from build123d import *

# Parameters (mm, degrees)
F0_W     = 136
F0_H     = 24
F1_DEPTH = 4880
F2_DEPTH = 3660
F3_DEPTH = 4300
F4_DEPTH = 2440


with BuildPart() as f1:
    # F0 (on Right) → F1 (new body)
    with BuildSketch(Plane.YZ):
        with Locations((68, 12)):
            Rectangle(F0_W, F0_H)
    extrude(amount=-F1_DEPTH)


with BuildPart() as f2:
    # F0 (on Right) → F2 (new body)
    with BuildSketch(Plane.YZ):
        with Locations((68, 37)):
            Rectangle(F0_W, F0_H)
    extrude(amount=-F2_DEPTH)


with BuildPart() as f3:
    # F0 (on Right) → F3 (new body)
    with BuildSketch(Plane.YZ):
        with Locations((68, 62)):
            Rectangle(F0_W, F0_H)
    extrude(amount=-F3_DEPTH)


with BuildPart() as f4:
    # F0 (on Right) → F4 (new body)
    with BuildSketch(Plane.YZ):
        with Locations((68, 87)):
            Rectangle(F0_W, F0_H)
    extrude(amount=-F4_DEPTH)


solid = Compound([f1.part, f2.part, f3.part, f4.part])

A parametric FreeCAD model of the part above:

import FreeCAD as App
import Part
import Sketcher
from FreeCAD import Vector
Q = App.Units.Quantity

doc = App.newDocument("Part")
body = doc.addObject("PartDesign::Body", "Body")

sketch1 = body.newObject("Sketcher::SketchObject", "Sketch")
sketch1.AttachmentSupport = (doc.getObject("YZ_Plane"), [""])
sketch1.MapMode = "FlatFace"
sketch1.addGeometry([
    Part.LineSegment(Vector(0, 24, 0), Vector(0, 0, 0)),
    Part.LineSegment(Vector(0, 0, 0), Vector(136, 0, 0)),
    Part.LineSegment(Vector(136, 0, 0), Vector(136, 24, 0)),
    Part.LineSegment(Vector(136, 24, 0), Vector(0, 24, 0)),
], False)
sketch1.addConstraint([
    Sketcher.Constraint("Coincident", 0, 2, 1, 1),
    Sketcher.Constraint("Coincident", 1, 2, 2, 1),
    Sketcher.Constraint("Coincident", 2, 2, 3, 1),
    Sketcher.Constraint("Coincident", 3, 2, 0, 1),
    Sketcher.Constraint("Vertical", 0),
    Sketcher.Constraint("Horizontal", 1),
    Sketcher.Constraint("Vertical", 2),
    Sketcher.Constraint("Horizontal", 3),
    Sketcher.Constraint("Coincident", 0, 2, -1, 1),
    Sketcher.Constraint("DistanceX", 1, 1, 1, 2, Q("136 mm")),
    Sketcher.Constraint("DistanceY", 0, 2, 0, 1, Q("24 mm")),
])
pad1 = body.newObject("PartDesign::Pad", "Pad")
pad1.Profile = sketch1
pad1.Length = 4880
pad1.Reversed = True
body2 = doc.addObject("PartDesign::Body", "Body001")

sketch2 = body2.newObject("Sketcher::SketchObject", "Sketch001")
sketch2.AttachmentSupport = (doc.getObject("YZ_Plane001"), [""])
sketch2.MapMode = "FlatFace"
sketch2.addGeometry([
    Part.LineSegment(Vector(0, 49, 0), Vector(0, 25, 0)),
    Part.LineSegment(Vector(0, 25, 0), Vector(136, 25, 0)),
    Part.LineSegment(Vector(136, 25, 0), Vector(136, 49, 0)),
    Part.LineSegment(Vector(136, 49, 0), Vector(0, 49, 0)),
], False)
sketch2.addConstraint([
    Sketcher.Constraint("Coincident", 0, 2, 1, 1),
    Sketcher.Constraint("Coincident", 1, 2, 2, 1),
    Sketcher.Constraint("Coincident", 2, 2, 3, 1),
    Sketcher.Constraint("Coincident", 3, 2, 0, 1),
    Sketcher.Constraint("Vertical", 0),
    Sketcher.Constraint("Horizontal", 1),
    Sketcher.Constraint("Vertical", 2),
    Sketcher.Constraint("Horizontal", 3),
    Sketcher.Constraint("PointOnObject", 0, 2, -2),
    Sketcher.Constraint("DistanceX", 1, 1, 1, 2, Q("136 mm")),
    Sketcher.Constraint("DistanceY", 0, 2, 0, 1, Q("24 mm")),
    Sketcher.Constraint("DistanceY", -1, 1, 0, 2, Q("25 mm")),
])
pad2 = body2.newObject("PartDesign::Pad", "Pad001")
pad2.Profile = sketch2
pad2.Length = 3660
pad2.Reversed = True
body3 = doc.addObject("PartDesign::Body", "Body002")

sketch3 = body3.newObject("Sketcher::SketchObject", "Sketch002")
sketch3.AttachmentSupport = (doc.getObject("YZ_Plane002"), [""])
sketch3.MapMode = "FlatFace"
sketch3.addGeometry([
    Part.LineSegment(Vector(0, 74, 0), Vector(0, 50, 0)),
    Part.LineSegment(Vector(0, 50, 0), Vector(136, 50, 0)),
    Part.LineSegment(Vector(136, 50, 0), Vector(136, 74, 0)),
    Part.LineSegment(Vector(136, 74, 0), Vector(0, 74, 0)),
], False)
sketch3.addConstraint([
    Sketcher.Constraint("Coincident", 0, 2, 1, 1),
    Sketcher.Constraint("Coincident", 1, 2, 2, 1),
    Sketcher.Constraint("Coincident", 2, 2, 3, 1),
    Sketcher.Constraint("Coincident", 3, 2, 0, 1),
    Sketcher.Constraint("Vertical", 0),
    Sketcher.Constraint("Horizontal", 1),
    Sketcher.Constraint("Vertical", 2),
    Sketcher.Constraint("Horizontal", 3),
    Sketcher.Constraint("PointOnObject", 0, 2, -2),
    Sketcher.Constraint("DistanceX", 1, 1, 1, 2, Q("136 mm")),
    Sketcher.Constraint("DistanceY", 0, 2, 0, 1, Q("24 mm")),
    Sketcher.Constraint("DistanceY", -1, 1, 0, 2, Q("50 mm")),
])
pad3 = body3.newObject("PartDesign::Pad", "Pad002")
pad3.Profile = sketch3
pad3.Length = 4300
pad3.Reversed = True
body4 = doc.addObject("PartDesign::Body", "Body003")

sketch4 = body4.newObject("Sketcher::SketchObject", "Sketch003")
sketch4.AttachmentSupport = (doc.getObject("YZ_Plane003"), [""])
sketch4.MapMode = "FlatFace"
sketch4.addGeometry([
    Part.LineSegment(Vector(0, 99, 0), Vector(0, 75, 0)),
    Part.LineSegment(Vector(0, 75, 0), Vector(136, 75, 0)),
    Part.LineSegment(Vector(136, 75, 0), Vector(136, 99, 0)),
    Part.LineSegment(Vector(136, 99, 0), Vector(0, 99, 0)),
], False)
sketch4.addConstraint([
    Sketcher.Constraint("Coincident", 0, 2, 1, 1),
    Sketcher.Constraint("Coincident", 1, 2, 2, 1),
    Sketcher.Constraint("Coincident", 2, 2, 3, 1),
    Sketcher.Constraint("Coincident", 3, 2, 0, 1),
    Sketcher.Constraint("Vertical", 0),
    Sketcher.Constraint("Horizontal", 1),
    Sketcher.Constraint("Vertical", 2),
    Sketcher.Constraint("Horizontal", 3),
    Sketcher.Constraint("PointOnObject", 0, 2, -2),
    Sketcher.Constraint("DistanceX", 1, 1, 1, 2, Q("136 mm")),
    Sketcher.Constraint("DistanceY", 0, 2, 0, 1, Q("24 mm")),
    Sketcher.Constraint("DistanceY", -1, 1, 0, 2, Q("75 mm")),
])
pad4 = body4.newObject("PartDesign::Pad", "Pad003")
pad4.Profile = sketch4
pad4.Length = 2440
pad4.Reversed = True

doc.recompute()
